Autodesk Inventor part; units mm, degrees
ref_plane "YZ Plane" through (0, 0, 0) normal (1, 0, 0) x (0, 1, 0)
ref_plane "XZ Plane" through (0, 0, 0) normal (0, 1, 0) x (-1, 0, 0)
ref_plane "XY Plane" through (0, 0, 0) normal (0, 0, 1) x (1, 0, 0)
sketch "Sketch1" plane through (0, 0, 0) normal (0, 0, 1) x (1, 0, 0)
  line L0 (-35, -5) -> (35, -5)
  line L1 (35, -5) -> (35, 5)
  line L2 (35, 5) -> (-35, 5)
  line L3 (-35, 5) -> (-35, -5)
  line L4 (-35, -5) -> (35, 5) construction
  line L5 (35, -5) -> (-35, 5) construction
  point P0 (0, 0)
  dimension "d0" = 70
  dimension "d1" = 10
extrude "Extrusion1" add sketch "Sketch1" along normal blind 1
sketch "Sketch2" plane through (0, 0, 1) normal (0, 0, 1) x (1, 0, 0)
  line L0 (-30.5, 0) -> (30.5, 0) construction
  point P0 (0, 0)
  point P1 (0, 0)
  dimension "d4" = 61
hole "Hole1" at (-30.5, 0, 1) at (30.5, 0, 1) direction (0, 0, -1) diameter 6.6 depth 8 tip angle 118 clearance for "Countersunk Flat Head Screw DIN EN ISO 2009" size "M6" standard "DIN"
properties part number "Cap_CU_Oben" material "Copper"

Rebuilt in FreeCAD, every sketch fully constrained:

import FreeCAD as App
import Part
import Sketcher

V = App.Vector
Q = App.Units.Quantity


def add_polygon(sketch, points):
    """Adds a closed chain of lines whose ends are joined by coincident constraints."""
    first, n = sketch.GeometryCount, len(points)
    for a, b in zip(points, points[1:] + points[:1]):
        sketch.addGeometry(Part.LineSegment(App.Vector(*a, 0), App.Vector(*b, 0)), False)
    for i in range(n):
        sketch.addConstraint(Sketcher.Constraint("Coincident", first + i, 2, first + (i + 1) % n, 1))

doc = App.newDocument("Part")
params = doc.addObject("Spreadsheet::Sheet", "Params")
for row, (alias, value) in enumerate([
    ("sketch1_width", "70 mm"),
    ("sketch1_height", "10 mm"),
    ("pad1_length", "1 mm"),
    ("sketch2_diameter", "6.6 mm"),
    ("hole_diameter", "6.6 mm"),
    ("hole_depth", "8 mm"),
], start=1):
    params.set(f"A{row}", alias)
    params.set(f"B{row}", "=" + value)
    params.setAlias(f"B{row}", alias)

body = doc.addObject("PartDesign::Body", "Body")

sketch1 = body.newObject("Sketcher::SketchObject", "Sketch")
sketch1.AttachmentSupport = (doc.getObject("XY_Plane"), [""])
sketch1.MapMode = "FlatFace"
add_polygon(sketch1, [(-35, 5), (-35, -5), (35, -5), (35, 5)])
sketch1.addConstraint(Sketcher.Constraint("Vertical", 0))
sketch1.addConstraint(Sketcher.Constraint("Horizontal", 1))
sketch1.addConstraint(Sketcher.Constraint("Vertical", 2))
sketch1.addConstraint(Sketcher.Constraint("Horizontal", 3))
sketch1.addConstraint(Sketcher.Constraint("Symmetric", 0, 2, 2, 2, -1, 1))
sketch1.addConstraint(Sketcher.Constraint("DistanceX", 1, 1, 1, 2, Q("70 mm")))
sketch1.addConstraint(Sketcher.Constraint("DistanceY", 0, 2, 0, 1, Q("10 mm")))
sketch1.setExpression("Constraints[9]", "Params.sketch1_width")
sketch1.setExpression("Constraints[10]", "Params.sketch1_height")
pad1 = body.newObject("PartDesign::Pad", "Pad")
pad1.Profile = sketch1
pad1.setExpression("Length", "Params.pad1_length")

sketch2 = body.newObject("Sketcher::SketchObject", "Sketch001")
sketch2.AttachmentSupport = (doc.getObject("XY_Plane"), [""])
sketch2.MapMode = "FlatFace"
sketch2.AttachmentOffset = App.Placement(V(0, 0, 1), App.Rotation())
sketch2.addGeometry(Part.Circle(V(-30.5, 0, 0), V(0, 0, 1), 3.3), False)
sketch2.addGeometry(Part.Circle(V(30.5, 0, 0), V(0, 0, 1), 3.3), False)
sketch2.addConstraint(Sketcher.Constraint("Equal", 0, 1))
sketch2.addConstraint(Sketcher.Constraint("Symmetric", 0, 3, 1, 3, -1, 1))
sketch2.addConstraint(Sketcher.Constraint("PointOnObject", 0, 3, -1))
sketch2.addConstraint(Sketcher.Constraint("Diameter", 0, Q("6.6 mm")))
sketch2.addConstraint(Sketcher.Constraint("DistanceX", 0, 3, 1, 3, Q("61 mm")))
sketch2.setExpression("Constraints[3]", "Params.sketch2_diameter")
doc.recompute()
hole = body.newObject("PartDesign::Hole", "Hole")
hole.Profile = sketch2
hole.ThreadType = "None"
hole.setExpression("Diameter", "Params.hole_diameter")
hole.DepthType = "Dimension"
hole.setExpression("Depth", "Params.hole_depth")
hole.DrillPoint = "Angled"
hole.DrillPointAngle = 118

doc.recompute()
